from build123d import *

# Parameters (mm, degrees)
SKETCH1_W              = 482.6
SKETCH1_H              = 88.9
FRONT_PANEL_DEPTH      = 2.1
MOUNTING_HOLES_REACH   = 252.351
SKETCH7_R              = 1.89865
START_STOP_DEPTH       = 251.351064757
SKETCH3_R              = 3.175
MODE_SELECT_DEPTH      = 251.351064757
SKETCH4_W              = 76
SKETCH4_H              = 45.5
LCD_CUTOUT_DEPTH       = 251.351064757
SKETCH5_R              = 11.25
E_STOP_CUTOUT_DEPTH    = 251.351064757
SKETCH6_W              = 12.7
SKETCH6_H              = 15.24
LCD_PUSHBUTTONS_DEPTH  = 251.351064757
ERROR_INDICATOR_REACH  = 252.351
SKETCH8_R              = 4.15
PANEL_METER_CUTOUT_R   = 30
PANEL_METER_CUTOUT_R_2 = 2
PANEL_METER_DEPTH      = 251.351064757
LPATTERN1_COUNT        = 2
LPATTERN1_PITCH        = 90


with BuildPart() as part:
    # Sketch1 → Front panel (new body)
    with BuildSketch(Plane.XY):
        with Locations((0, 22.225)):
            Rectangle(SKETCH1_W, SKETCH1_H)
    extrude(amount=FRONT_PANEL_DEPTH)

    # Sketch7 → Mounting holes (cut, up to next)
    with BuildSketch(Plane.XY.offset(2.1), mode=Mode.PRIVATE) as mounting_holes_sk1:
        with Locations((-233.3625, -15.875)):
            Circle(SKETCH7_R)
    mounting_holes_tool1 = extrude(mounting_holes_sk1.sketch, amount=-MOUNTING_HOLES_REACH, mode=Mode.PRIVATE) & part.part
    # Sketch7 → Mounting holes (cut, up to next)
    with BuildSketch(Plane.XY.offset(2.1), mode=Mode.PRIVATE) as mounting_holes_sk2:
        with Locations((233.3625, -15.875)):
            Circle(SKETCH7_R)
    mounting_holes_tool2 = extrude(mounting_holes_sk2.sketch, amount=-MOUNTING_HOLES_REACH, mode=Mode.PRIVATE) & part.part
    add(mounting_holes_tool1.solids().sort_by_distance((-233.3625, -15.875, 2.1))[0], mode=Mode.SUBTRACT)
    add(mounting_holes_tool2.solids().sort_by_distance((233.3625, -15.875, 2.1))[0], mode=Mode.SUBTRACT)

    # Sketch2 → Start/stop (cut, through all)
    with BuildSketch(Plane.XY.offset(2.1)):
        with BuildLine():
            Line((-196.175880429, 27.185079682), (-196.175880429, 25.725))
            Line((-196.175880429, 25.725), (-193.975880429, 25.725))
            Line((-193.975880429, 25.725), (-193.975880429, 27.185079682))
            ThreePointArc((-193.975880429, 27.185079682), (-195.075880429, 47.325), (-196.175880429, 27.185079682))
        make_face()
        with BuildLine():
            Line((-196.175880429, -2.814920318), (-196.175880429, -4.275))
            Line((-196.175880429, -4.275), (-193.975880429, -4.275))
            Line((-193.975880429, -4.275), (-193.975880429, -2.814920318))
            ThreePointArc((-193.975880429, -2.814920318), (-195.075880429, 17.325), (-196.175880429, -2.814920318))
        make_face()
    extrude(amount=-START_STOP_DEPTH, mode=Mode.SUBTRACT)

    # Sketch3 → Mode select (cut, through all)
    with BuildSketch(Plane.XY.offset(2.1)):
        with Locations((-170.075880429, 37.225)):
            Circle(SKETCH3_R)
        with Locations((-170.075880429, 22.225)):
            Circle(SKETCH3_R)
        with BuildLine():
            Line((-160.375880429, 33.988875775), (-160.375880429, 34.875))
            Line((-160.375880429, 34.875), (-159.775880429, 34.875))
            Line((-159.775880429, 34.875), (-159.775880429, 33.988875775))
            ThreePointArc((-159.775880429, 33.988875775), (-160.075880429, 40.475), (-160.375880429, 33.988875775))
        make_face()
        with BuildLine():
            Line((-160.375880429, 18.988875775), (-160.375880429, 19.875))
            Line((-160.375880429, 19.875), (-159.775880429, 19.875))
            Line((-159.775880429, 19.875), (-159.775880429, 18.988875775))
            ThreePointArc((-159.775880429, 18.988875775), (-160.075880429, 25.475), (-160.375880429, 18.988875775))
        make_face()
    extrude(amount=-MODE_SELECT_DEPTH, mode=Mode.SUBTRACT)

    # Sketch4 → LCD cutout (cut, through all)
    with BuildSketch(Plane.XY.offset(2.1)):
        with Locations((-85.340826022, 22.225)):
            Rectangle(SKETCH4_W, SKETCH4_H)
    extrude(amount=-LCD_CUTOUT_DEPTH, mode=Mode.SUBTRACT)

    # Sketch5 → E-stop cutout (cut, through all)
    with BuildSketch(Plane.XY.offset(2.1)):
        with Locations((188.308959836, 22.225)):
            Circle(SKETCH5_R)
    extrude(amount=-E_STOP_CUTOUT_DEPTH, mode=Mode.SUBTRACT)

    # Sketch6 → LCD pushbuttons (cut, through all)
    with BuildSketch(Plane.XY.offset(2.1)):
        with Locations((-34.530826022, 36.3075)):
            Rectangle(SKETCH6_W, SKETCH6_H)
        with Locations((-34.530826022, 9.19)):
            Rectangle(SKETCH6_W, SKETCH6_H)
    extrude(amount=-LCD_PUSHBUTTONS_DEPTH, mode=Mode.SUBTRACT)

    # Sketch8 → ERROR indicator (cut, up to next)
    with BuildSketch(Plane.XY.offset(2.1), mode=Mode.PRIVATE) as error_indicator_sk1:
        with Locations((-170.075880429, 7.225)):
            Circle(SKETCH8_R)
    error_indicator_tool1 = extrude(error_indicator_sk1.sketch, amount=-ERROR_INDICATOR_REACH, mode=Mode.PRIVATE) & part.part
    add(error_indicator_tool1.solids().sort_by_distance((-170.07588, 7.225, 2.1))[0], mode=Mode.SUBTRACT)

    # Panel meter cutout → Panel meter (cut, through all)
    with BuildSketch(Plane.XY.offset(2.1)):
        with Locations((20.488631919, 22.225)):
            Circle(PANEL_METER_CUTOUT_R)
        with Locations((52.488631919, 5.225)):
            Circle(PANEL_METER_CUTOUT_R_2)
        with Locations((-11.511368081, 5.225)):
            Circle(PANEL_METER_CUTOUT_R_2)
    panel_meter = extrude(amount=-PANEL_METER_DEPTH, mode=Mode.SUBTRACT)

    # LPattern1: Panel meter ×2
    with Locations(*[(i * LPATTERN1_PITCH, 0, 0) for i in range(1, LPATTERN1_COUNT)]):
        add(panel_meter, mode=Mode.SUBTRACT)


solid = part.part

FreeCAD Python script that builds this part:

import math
import FreeCAD as App
import Part
import Sketcher
from FreeCAD import Vector
Q = App.Units.Quantity


def add_polygon(sketch, points):
    """Adds a closed chain of lines whose ends are joined by coincident constraints."""
    first, n = sketch.GeometryCount, len(points)
    for a, b in zip(points, points[1:] + points[:1]):
        sketch.addGeometry(Part.LineSegment(App.Vector(*a, 0), App.Vector(*b, 0)), False)
    for i in range(n):
        sketch.addConstraint(Sketcher.Constraint("Coincident", first + i, 2, first + (i + 1) % n, 1))

doc = App.newDocument("Part")
params = doc.addObject("Spreadsheet::Sheet", "Params")
for row, (alias, value) in enumerate([
    ("sketch1_width", "482.6 mm"),
    ("sketch1_height", "88.9 mm"),
    ("pad1_length", "2.1 mm"),
    ("sketch4_radius", "10.1 mm"),
    ("sketch4_width", "2.2 mm"),
    ("sketch5_diameter", "6.35 mm"),
    ("sketch5_radius", "3.25 mm"),
    ("sketch5_width", "0.6 mm"),
    ("sketch6_width", "76 mm"),
    ("sketch6_height", "45.5 mm"),
    ("sketch7_diameter", "22.5 mm"),
    ("sketch8_width", "12.7 mm"),
    ("sketch8_height", "15.24 mm"),
    ("sketch9_diameter", "8.3 mm"),
    ("sketch10_diameter", "60 mm"),
    ("sketch10_diameter2", "4 mm"),
    ("linearpattern_pitch", "90 mm"),
], start=1):
    params.set(f"A{row}", alias)
    params.set(f"B{row}", "=" + value)
    params.setAlias(f"B{row}", alias)

body = doc.addObject("PartDesign::Body", "Body")

# Sketch on XY plane
sketch1 = body.newObject("Sketcher::SketchObject", "Sketch")
sketch1.AttachmentSupport = (doc.getObject("XY_Plane"), [""])
sketch1.MapMode = "FlatFace"
add_polygon(sketch1, [(-241.3, 66.675), (-241.3, -22.225), (241.3, -22.225), (241.3, 66.675)])  # lines 0-3
sketch1.addConstraint(Sketcher.Constraint("Vertical", 0))
sketch1.addConstraint(Sketcher.Constraint("Horizontal", 1))
sketch1.addConstraint(Sketcher.Constraint("Vertical", 2))
sketch1.addConstraint(Sketcher.Constraint("Horizontal", 3))
sketch1.addConstraint(Sketcher.Constraint("DistanceX", 1, 1, 1, 2, Q("482.6 mm")))
sketch1.addConstraint(Sketcher.Constraint("DistanceY", 0, 2, 0, 1, Q("88.9 mm")))
sketch1.addConstraint(Sketcher.Constraint("DistanceX", 0, 2, -1, 1, Q("241.3 mm")))
sketch1.addConstraint(Sketcher.Constraint("DistanceY", 0, 2, -1, 1, Q("22.225 mm")))
sketch1.setExpression("Constraints[8]", "Params.sketch1_width")
sketch1.setExpression("Constraints[9]", "Params.sketch1_height")
pad1 = body.newObject("PartDesign::Pad", "Pad")
pad1.Profile = sketch1
pad1.setExpression("Length", "Params.pad1_length")

# Sketch on XY plane
sketch2 = body.newObject("Sketcher::SketchObject", "Sketch001")
sketch2.AttachmentSupport = (doc.getObject("XY_Plane"), [""])
sketch2.MapMode = "FlatFace"
sketch2.AttachmentOffset = App.Placement(Vector(0, 0, 2.1), App.Rotation())
sketch2.addGeometry(Part.Circle(Vector(-233.3625, -15.875, 0), Vector(0, 0, 1), 1.89865), False)
sketch2.addConstraint(Sketcher.Constraint("Diameter", 0, Q("3.7973 mm")))
sketch2.addConstraint(Sketcher.Constraint("DistanceY", 0, 3, -1, 1, Q("15.875 mm")))
sketch2.addConstraint(Sketcher.Constraint("DistanceX", 0, 3, -1, 1, Q("233.3625 mm")))
pocket1 = body.newObject("PartDesign::Pocket", "Pocket")
pocket1.Profile = sketch2
pocket1.Type = "UpToFirst"

# Sketch on XY plane
sketch3 = body.newObject("Sketcher::SketchObject", "Sketch002")
sketch3.AttachmentSupport = (doc.getObject("XY_Plane"), [""])
sketch3.MapMode = "FlatFace"
sketch3.AttachmentOffset = App.Placement(Vector(0, 0, 2.1), App.Rotation())
sketch3.addGeometry(Part.Circle(Vector(233.3625, -15.875, 0), Vector(0, 0, 1), 1.89865), False)
sketch3.addConstraint(Sketcher.Constraint("Diameter", 0, Q("3.7973 mm")))
sketch3.addConstraint(Sketcher.Constraint("DistanceY", 0, 3, -1, 1, Q("15.875 mm")))
sketch3.addConstraint(Sketcher.Constraint("DistanceX", -1, 1, 0, 3, Q("233.3625 mm")))
pocket2 = body.newObject("PartDesign::Pocket", "Pocket001")
pocket2.Profile = sketch3
pocket2.Type = "UpToFirst"

# Sketch on XY plane
sketch4 = body.newObject("Sketcher::SketchObject", "Sketch003")
sketch4.AttachmentSupport = (doc.getObject("XY_Plane"), [""])
sketch4.MapMode = "FlatFace"
sketch4.AttachmentOffset = App.Placement(Vector(0, 0, 2.1), App.Rotation())
sketch4.addGeometry(Part.LineSegment(Vector(-196.17588, 27.18508, 0), Vector(-196.17588, 25.725, 0)), False)
sketch4.addGeometry(Part.LineSegment(Vector(-196.17588, 25.725, 0), Vector(-193.97588, 25.725, 0)), False)
sketch4.addGeometry(Part.LineSegment(Vector(-193.97588, 25.725, 0), Vector(-193.97588, 27.18508, 0)), False)
sketch4.addGeometry(Part.ArcOfCircle(Part.Circle(Vector(-195.07588, 37.225, 0), Vector(0, 0, 1), 10.1), math.radians(-83.747463), math.radians(263.747463)), False)
sketch4.addGeometry(Part.LineSegment(Vector(-196.17588, -2.81492, 0), Vector(-196.17588, -4.275, 0)), False)
sketch4.addGeometry(Part.LineSegment(Vector(-196.17588, -4.275, 0), Vector(-193.97588, -4.275, 0)), False)
sketch4.addGeometry(Part.LineSegment(Vector(-193.97588, -4.275, 0), Vector(-193.97588, -2.81492, 0)), False)
sketch4.addGeometry(Part.ArcOfCircle(Part.Circle(Vector(-195.07588, 7.225, 0), Vector(0, 0, 1), 10.1), math.radians(-83.747463), math.radians(263.747463)), False)
sketch4.addConstraint(Sketcher.Constraint("Coincident", 0, 2, 1, 1))
sketch4.addConstraint(Sketcher.Constraint("Coincident", 1, 2, 2, 1))
sketch4.addConstraint(Sketcher.Constraint("Coincident", 2, 2, 3, 1))
sketch4.addConstraint(Sketcher.Constraint("Coincident", 3, 2, 0, 1))
sketch4.addConstraint(Sketcher.Constraint("Coincident", 4, 2, 5, 1))
sketch4.addConstraint(Sketcher.Constraint("Coincident", 5, 2, 6, 1))
sketch4.addConstraint(Sketcher.Constraint("Coincident", 6, 2, 7, 1))
sketch4.addConstraint(Sketcher.Constraint("Coincident", 7, 2, 4, 1))
sketch4.addConstraint(Sketcher.Constraint("Vertical", 0))
sketch4.addConstraint(Sketcher.Constraint("Horizontal", 1))
sketch4.addConstraint(Sketcher.Constraint("Vertical", 2))
sketch4.addConstraint(Sketcher.Constraint("Vertical", 4))
sketch4.addConstraint(Sketcher.Constraint("Horizontal", 5))
sketch4.addConstraint(Sketcher.Constraint("Vertical", 6))
sketch4.addConstraint(Sketcher.Constraint("Equal", 3, 7))
sketch4.addConstraint(Sketcher.Constraint("Horizontal", 2, 2, 3, 2))
sketch4.addConstraint(Sketcher.Constraint("Horizontal", 6, 2, 7, 2))
sketch4.addConstraint(Sketcher.Constraint("Vertical", 3, 3, 7, 3))
sketch4.addConstraint(Sketcher.Constraint("Vertical", 3, 2, 4, 2))
sketch4.addConstraint(Sketcher.Constraint("Equal", 2, 4))
sketch4.addConstraint(Sketcher.Constraint("Radius", 3, Q("10.1 mm")))
sketch4.addConstraint(Sketcher.Constraint("DistanceX", 1, 1, 1, 2, Q("2.2 mm")))
sketch4.addConstraint(Sketcher.Constraint("DistanceY", 7, 3, 3, 3, Q("30 mm")))
sketch4.addConstraint(Sketcher.Constraint("DistanceY", 0, 2, 3, 3, Q("11.5 mm")))
sketch4.addConstraint(Sketcher.Constraint("DistanceY", -1, 1, 3, 3, Q("37.225 mm")))
sketch4.addConstraint(Sketcher.Constraint("DistanceX", 3, 3, -1, 1, Q("195.07588 mm")))
sketch4.setExpression("Constraints[20]", "Params.sketch4_radius")
sketch4.setExpression("Constraints[21]", "Params.sketch4_width")
pocket3 = body.newObject("PartDesign::Pocket", "Pocket002")
pocket3.Profile = sketch4
pocket3.Type = "ThroughAll"

# Sketch on XY plane
sketch5 = body.newObject("Sketcher::SketchObject", "Sketch004")
sketch5.AttachmentSupport = (doc.getObject("XY_Plane"), [""])
sketch5.MapMode = "FlatFace"
sketch5.AttachmentOffset = App.Placement(Vector(0, 0, 2.1), App.Rotation())
sketch5.addGeometry(Part.Circle(Vector(-170.07588, 37.225, 0), Vector(0, 0, 1), 3.175), False)
sketch5.addGeometry(Part.Circle(Vector(-170.07588, 22.225, 0), Vector(0, 0, 1), 3.175), False)
sketch5.addGeometry(Part.LineSegment(Vector(-160.37588, 33.988876, 0), Vector(-160.37588, 34.875, 0)), False)
sketch5.addGeometry(Part.LineSegment(Vector(-160.37588, 34.875, 0), Vector(-159.77588, 34.875, 0)), False)
sketch5.addGeometry(Part.LineSegment(Vector(-159.77588, 34.875, 0), Vector(-159.77588, 33.988876, 0)), False)
sketch5.addGeometry(Part.ArcOfCircle(Part.Circle(Vector(-160.07588, 37.225, 0), Vector(0, 0, 1), 3.25), math.radians(-84.703619), math.radians(264.703619)), False)
sketch5.addGeometry(Part.LineSegment(Vector(-160.37588, 18.988876, 0), Vector(-160.37588, 19.875, 0)), False)
sketch5.addGeometry(Part.LineSegment(Vector(-160.37588, 19.875, 0), Vector(-159.77588, 19.875, 0)), False)
sketch5.addGeometry(Part.LineSegment(Vector(-159.77588, 19.875, 0), Vector(-159.77588, 18.988876, 0)), False)
sketch5.addGeometry(Part.ArcOfCircle(Part.Circle(Vector(-160.07588, 22.225, 0), Vector(0, 0, 1), 3.25), math.radians(-84.703619), math.radians(264.703619)), False)
sketch5.addConstraint(Sketcher.Constraint("Coincident", 2, 2, 3, 1))
sketch5.addConstraint(Sketcher.Constraint("Coincident", 3, 2, 4, 1))
sketch5.addConstraint(Sketcher.Constraint("Coincident", 4, 2, 5, 1))
sketch5.addConstraint(Sketcher.Constraint("Coincident", 5, 2, 2, 1))
sketch5.addConstraint(Sketcher.Constraint("Coincident", 6, 2, 7, 1))
sketch5.addConstraint(Sketcher.Constraint("Coincident", 7, 2, 8, 1))
sketch5.addConstraint(Sketcher.Constraint("Coincident", 8, 2, 9, 1))
sketch5.addConstraint(Sketcher.Constraint("Coincident", 9, 2, 6, 1))
sketch5.addConstraint(Sketcher.Constraint("Vertical", 2))
sketch5.addConstraint(Sketcher.Constraint("Horizontal", 3))
sketch5.addConstraint(Sketcher.Constraint("Vertical", 4))
sketch5.addConstraint(Sketcher.Constraint("Vertical", 6))
sketch5.addConstraint(Sketcher.Constraint("Horizontal", 7))
sketch5.addConstraint(Sketcher.Constraint("Vertical", 8))
sketch5.addConstraint(Sketcher.Constraint("Equal", 0, 1))
sketch5.addConstraint(Sketcher.Constraint("Equal", 5, 9))
sketch5.addConstraint(Sketcher.Constraint("Horizontal", 0, 3, 5, 3))
sketch5.addConstraint(Sketcher.Constraint("Horizontal", 1, 3, 9, 3))
sketch5.addConstraint(Sketcher.Constraint("Horizontal", 4, 2, 5, 2))
sketch5.addConstraint(Sketcher.Constraint("Horizontal", 8, 2, 9, 2))
sketch5.addConstraint(Sketcher.Constraint("Vertical", 0, 3, 1, 3))
sketch5.addConstraint(Sketcher.Constraint("Vertical", 5, 3, 9, 3))
sketch5.addConstraint(Sketcher.Constraint("Vertical", 5, 2, 6, 2))
sketch5.addConstraint(Sketcher.Constraint("Equal", 4, 6))
sketch5.addConstraint(Sketcher.Constraint("Diameter", 0, Q("6.35 mm")))
sketch5.addConstraint(Sketcher.Constraint("Radius", 5, Q("3.25 mm")))
sketch5.addConstraint(Sketcher.Constraint("DistanceX", 3, 1, 3, 2, Q("0.6 mm")))
sketch5.addConstraint(Sketcher.Constraint("DistanceY", 1, 3, 0, 3, Q("15 mm")))
sketch5.addConstraint(Sketcher.Constraint("DistanceX", 0, 3, 5, 3, Q("10 mm")))
sketch5.addConstraint(Sketcher.Constraint("DistanceY", 2, 2, 5, 3, Q("2.35 mm")))
sketch5.addConstraint(Sketcher.Constraint("DistanceY", -1, 1, 0, 3, Q("37.225 mm")))
sketch5.addConstraint(Sketcher.Constraint("DistanceX", 0, 3, -1, 1, Q("170.07588 mm")))
sketch5.setExpression("Constraints[24]", "Params.sketch5_diameter")
sketch5.setExpression("Constraints[25]", "Params.sketch5_radius")
sketch5.setExpression("Constraints[26]", "Params.sketch5_width")
pocket4 = body.newObject("PartDesign::Pocket", "Pocket003")
pocket4.Profile = sketch5
pocket4.Type = "ThroughAll"

# Sketch on XY plane
sketch6 = body.newObject("Sketcher::SketchObject", "Sketch005")
sketch6.AttachmentSupport = (doc.getObject("XY_Plane"), [""])
sketch6.MapMode = "FlatFace"
sketch6.AttachmentOffset = App.Placement(Vector(0, 0, 2.1), App.Rotation())
add_polygon(sketch6, [(-123.340826, 44.975), (-123.340826, -0.525), (-47.340826, -0.525), (-47.340826, 44.975)])  # lines 0-3
sketch6.addConstraint(Sketcher.Constraint("Vertical", 0))
sketch6.addConstraint(Sketcher.Constraint("Horizontal", 1))
sketch6.addConstraint(Sketcher.Constraint("Vertical", 2))
sketch6.addConstraint(Sketcher.Constraint("Horizontal", 3))
sketch6.addConstraint(Sketcher.Constraint("DistanceX", 1, 1, 1, 2, Q("76 mm")))
sketch6.addConstraint(Sketcher.Constraint("DistanceY", 0, 2, 0, 1, Q("45.5 mm")))
sketch6.addConstraint(Sketcher.Constraint("DistanceY", 0, 2, -1, 1, Q("0.525 mm")))
sketch6.addConstraint(Sketcher.Constraint("DistanceX", 0, 2, -1, 1, Q("123.340826 mm")))
sketch6.setExpression("Constraints[8]", "Params.sketch6_width")
sketch6.setExpression("Constraints[9]", "Params.sketch6_height")
pocket5 = body.newObject("PartDesign::Pocket", "Pocket004")
pocket5.Profile = sketch6
pocket5.Type = "ThroughAll"

# Sketch on XY plane
sketch7 = body.newObject("Sketcher::SketchObject", "Sketch006")
sketch7.AttachmentSupport = (doc.getObject("XY_Plane"), [""])
sketch7.MapMode = "FlatFace"
sketch7.AttachmentOffset = App.Placement(Vector(0, 0, 2.1), App.Rotation())
sketch7.addGeometry(Part.Circle(Vector(188.30896, 22.225, 0), Vector(0, 0, 1), 11.25), False)
sketch7.addConstraint(Sketcher.Constraint("Diameter", 0, Q("22.5 mm")))
sketch7.addConstraint(Sketcher.Constraint("DistanceY", -1, 1, 0, 3, Q("22.225 mm")))
sketch7.addConstraint(Sketcher.Constraint("DistanceX", -1, 1, 0, 3, Q("188.30896 mm")))
sketch7.setExpression("Constraints[0]", "Params.sketch7_diameter")
pocket6 = body.newObject("PartDesign::Pocket", "Pocket005")
pocket6.Profile = sketch7
pocket6.Type = "ThroughAll"

# Sketch on XY plane
sketch8 = body.newObject("Sketcher::SketchObject", "Sketch007")
sketch8.AttachmentSupport = (doc.getObject("XY_Plane"), [""])
sketch8.MapMode = "FlatFace"
sketch8.AttachmentOffset = App.Placement(Vector(0, 0, 2.1), App.Rotation())
add_polygon(sketch8, [(-40.880826, 43.9275), (-40.880826, 28.6875), (-28.180826, 28.6875), (-28.180826, 43.9275)])  # lines 0-3
add_polygon(sketch8, [(-40.880826, 16.81), (-40.880826, 1.57), (-28.180826, 1.57), (-28.180826, 16.81)])  # lines 4-7
sketch8.addConstraint(Sketcher.Constraint("Vertical", 0))
sketch8.addConstraint(Sketcher.Constraint("Horizontal", 1))
sketch8.addConstraint(Sketcher.Constraint("Vertical", 2))
sketch8.addConstraint(Sketcher.Constraint("Horizontal", 3))
sketch8.addConstraint(Sketcher.Constraint("Vertical", 4))
sketch8.addConstraint(Sketcher.Constraint("Horizontal", 5))
sketch8.addConstraint(Sketcher.Constraint("Vertical", 6))
sketch8.addConstraint(Sketcher.Constraint("Horizontal", 7))
sketch8.addConstraint(Sketcher.Constraint("Vertical", 3, 2, 4, 2))
sketch8.addConstraint(Sketcher.Constraint("Vertical", 2, 2, 5, 2))
sketch8.addConstraint(Sketcher.Constraint("Equal", 2, 4))
sketch8.addConstraint(Sketcher.Constraint("DistanceX", 1, 1, 1, 2, Q("12.7 mm")))
sketch8.addConstraint(Sketcher.Constraint("DistanceY", 0, 2, 0, 1, Q("15.24 mm")))
sketch8.addConstraint(Sketcher.Constraint("DistanceY", -1, 1, 4, 2, Q("1.57 mm")))
sketch8.addConstraint(Sketcher.Constraint("DistanceY", -1, 1, 0, 2, Q("28.6875 mm")))
sketch8.addConstraint(Sketcher.Constraint("DistanceX", 0, 2, -1, 1, Q("40.880826 mm")))
sketch8.setExpression("Constraints[19]", "Params.sketch8_width")
sketch8.setExpression("Constraints[20]", "Params.sketch8_height")
pocket7 = body.newObject("PartDesign::Pocket", "Pocket006")
pocket7.Profile = sketch8
pocket7.Type = "ThroughAll"

# Sketch on XY plane
sketch9 = body.newObject("Sketcher::SketchObject", "Sketch008")
sketch9.AttachmentSupport = (doc.getObject("XY_Plane"), [""])
sketch9.MapMode = "FlatFace"
sketch9.AttachmentOffset = App.Placement(Vector(0, 0, 2.1), App.Rotation())
sketch9.addGeometry(Part.Circle(Vector(-170.07588, 7.225, 0), Vector(0, 0, 1), 4.15), False)
sketch9.addConstraint(Sketcher.Constraint("Diameter", 0, Q("8.3 mm")))
sketch9.addConstraint(Sketcher.Constraint("DistanceY", -1, 1, 0, 3, Q("7.225 mm")))
sketch9.addConstraint(Sketcher.Constraint("DistanceX", 0, 3, -1, 1, Q("170.07588 mm")))
sketch9.setExpression("Constraints[0]", "Params.sketch9_diameter")
pocket8 = body.newObject("PartDesign::Pocket", "Pocket007")
pocket8.Profile = sketch9
pocket8.Type = "UpToFirst"

# Sketch on XY plane
sketch10 = body.newObject("Sketcher::SketchObject", "Sketch009")
sketch10.AttachmentSupport = (doc.getObject("XY_Plane"), [""])
sketch10.MapMode = "FlatFace"
sketch10.AttachmentOffset = App.Placement(Vector(0, 0, 2.1), App.Rotation())
sketch10.addGeometry(Part.Circle(Vector(20.488632, 22.225, 0), Vector(0, 0, 1), 30), False)
sketch10.addGeometry(Part.Circle(Vector(52.488632, 5.225, 0), Vector(0, 0, 1), 2), False)
sketch10.addGeometry(Part.Circle(Vector(-11.511368, 5.225, 0), Vector(0, 0, 1), 2), False)
sketch10.addConstraint(Sketcher.Constraint("Equal", 1, 2))
sketch10.addConstraint(Sketcher.Constraint("Horizontal", 1, 3, 2, 3))
sketch10.addConstraint(Sketcher.Constraint("Diameter", 0, Q("60 mm")))
sketch10.addConstraint(Sketcher.Constraint("Diameter", 1, Q("4 mm")))
sketch10.addConstraint(Sketcher.Constraint("DistanceX", 0, 3, 1, 3, Q("32 mm")))
sketch10.addConstraint(Sketcher.Constraint("DistanceY", 1, 3, 0, 3, Q("17 mm")))
sketch10.addConstraint(Sketcher.Constraint("DistanceX", 2, 3, 0, 3, Q("32 mm")))
sketch10.addConstraint(Sketcher.Constraint("DistanceY", -1, 1, 0, 3, Q("22.225 mm")))
sketch10.addConstraint(Sketcher.Constraint("DistanceX", -1, 1, 0, 3, Q("20.488632 mm")))
sketch10.setExpression("Constraints[2]", "Params.sketch10_diameter")
sketch10.setExpression("Constraints[3]", "Params.sketch10_diameter2")
pocket9 = body.newObject("PartDesign::Pocket", "Pocket008")
pocket9.Profile = sketch10
pocket9.Type = "ThroughAll"
doc.recompute()

linearpattern = body.newObject("PartDesign::LinearPattern", "LinearPattern")
linearpattern.Originals = [pocket9]
linearpattern.Direction = (doc.getObject("X_Axis"), [""])
linearpattern.Mode = "offset"
linearpattern.setExpression("Offset", "Params.linearpattern_pitch")
linearpattern.Occurrences = 2
body.Tip = linearpattern

doc.recompute()
